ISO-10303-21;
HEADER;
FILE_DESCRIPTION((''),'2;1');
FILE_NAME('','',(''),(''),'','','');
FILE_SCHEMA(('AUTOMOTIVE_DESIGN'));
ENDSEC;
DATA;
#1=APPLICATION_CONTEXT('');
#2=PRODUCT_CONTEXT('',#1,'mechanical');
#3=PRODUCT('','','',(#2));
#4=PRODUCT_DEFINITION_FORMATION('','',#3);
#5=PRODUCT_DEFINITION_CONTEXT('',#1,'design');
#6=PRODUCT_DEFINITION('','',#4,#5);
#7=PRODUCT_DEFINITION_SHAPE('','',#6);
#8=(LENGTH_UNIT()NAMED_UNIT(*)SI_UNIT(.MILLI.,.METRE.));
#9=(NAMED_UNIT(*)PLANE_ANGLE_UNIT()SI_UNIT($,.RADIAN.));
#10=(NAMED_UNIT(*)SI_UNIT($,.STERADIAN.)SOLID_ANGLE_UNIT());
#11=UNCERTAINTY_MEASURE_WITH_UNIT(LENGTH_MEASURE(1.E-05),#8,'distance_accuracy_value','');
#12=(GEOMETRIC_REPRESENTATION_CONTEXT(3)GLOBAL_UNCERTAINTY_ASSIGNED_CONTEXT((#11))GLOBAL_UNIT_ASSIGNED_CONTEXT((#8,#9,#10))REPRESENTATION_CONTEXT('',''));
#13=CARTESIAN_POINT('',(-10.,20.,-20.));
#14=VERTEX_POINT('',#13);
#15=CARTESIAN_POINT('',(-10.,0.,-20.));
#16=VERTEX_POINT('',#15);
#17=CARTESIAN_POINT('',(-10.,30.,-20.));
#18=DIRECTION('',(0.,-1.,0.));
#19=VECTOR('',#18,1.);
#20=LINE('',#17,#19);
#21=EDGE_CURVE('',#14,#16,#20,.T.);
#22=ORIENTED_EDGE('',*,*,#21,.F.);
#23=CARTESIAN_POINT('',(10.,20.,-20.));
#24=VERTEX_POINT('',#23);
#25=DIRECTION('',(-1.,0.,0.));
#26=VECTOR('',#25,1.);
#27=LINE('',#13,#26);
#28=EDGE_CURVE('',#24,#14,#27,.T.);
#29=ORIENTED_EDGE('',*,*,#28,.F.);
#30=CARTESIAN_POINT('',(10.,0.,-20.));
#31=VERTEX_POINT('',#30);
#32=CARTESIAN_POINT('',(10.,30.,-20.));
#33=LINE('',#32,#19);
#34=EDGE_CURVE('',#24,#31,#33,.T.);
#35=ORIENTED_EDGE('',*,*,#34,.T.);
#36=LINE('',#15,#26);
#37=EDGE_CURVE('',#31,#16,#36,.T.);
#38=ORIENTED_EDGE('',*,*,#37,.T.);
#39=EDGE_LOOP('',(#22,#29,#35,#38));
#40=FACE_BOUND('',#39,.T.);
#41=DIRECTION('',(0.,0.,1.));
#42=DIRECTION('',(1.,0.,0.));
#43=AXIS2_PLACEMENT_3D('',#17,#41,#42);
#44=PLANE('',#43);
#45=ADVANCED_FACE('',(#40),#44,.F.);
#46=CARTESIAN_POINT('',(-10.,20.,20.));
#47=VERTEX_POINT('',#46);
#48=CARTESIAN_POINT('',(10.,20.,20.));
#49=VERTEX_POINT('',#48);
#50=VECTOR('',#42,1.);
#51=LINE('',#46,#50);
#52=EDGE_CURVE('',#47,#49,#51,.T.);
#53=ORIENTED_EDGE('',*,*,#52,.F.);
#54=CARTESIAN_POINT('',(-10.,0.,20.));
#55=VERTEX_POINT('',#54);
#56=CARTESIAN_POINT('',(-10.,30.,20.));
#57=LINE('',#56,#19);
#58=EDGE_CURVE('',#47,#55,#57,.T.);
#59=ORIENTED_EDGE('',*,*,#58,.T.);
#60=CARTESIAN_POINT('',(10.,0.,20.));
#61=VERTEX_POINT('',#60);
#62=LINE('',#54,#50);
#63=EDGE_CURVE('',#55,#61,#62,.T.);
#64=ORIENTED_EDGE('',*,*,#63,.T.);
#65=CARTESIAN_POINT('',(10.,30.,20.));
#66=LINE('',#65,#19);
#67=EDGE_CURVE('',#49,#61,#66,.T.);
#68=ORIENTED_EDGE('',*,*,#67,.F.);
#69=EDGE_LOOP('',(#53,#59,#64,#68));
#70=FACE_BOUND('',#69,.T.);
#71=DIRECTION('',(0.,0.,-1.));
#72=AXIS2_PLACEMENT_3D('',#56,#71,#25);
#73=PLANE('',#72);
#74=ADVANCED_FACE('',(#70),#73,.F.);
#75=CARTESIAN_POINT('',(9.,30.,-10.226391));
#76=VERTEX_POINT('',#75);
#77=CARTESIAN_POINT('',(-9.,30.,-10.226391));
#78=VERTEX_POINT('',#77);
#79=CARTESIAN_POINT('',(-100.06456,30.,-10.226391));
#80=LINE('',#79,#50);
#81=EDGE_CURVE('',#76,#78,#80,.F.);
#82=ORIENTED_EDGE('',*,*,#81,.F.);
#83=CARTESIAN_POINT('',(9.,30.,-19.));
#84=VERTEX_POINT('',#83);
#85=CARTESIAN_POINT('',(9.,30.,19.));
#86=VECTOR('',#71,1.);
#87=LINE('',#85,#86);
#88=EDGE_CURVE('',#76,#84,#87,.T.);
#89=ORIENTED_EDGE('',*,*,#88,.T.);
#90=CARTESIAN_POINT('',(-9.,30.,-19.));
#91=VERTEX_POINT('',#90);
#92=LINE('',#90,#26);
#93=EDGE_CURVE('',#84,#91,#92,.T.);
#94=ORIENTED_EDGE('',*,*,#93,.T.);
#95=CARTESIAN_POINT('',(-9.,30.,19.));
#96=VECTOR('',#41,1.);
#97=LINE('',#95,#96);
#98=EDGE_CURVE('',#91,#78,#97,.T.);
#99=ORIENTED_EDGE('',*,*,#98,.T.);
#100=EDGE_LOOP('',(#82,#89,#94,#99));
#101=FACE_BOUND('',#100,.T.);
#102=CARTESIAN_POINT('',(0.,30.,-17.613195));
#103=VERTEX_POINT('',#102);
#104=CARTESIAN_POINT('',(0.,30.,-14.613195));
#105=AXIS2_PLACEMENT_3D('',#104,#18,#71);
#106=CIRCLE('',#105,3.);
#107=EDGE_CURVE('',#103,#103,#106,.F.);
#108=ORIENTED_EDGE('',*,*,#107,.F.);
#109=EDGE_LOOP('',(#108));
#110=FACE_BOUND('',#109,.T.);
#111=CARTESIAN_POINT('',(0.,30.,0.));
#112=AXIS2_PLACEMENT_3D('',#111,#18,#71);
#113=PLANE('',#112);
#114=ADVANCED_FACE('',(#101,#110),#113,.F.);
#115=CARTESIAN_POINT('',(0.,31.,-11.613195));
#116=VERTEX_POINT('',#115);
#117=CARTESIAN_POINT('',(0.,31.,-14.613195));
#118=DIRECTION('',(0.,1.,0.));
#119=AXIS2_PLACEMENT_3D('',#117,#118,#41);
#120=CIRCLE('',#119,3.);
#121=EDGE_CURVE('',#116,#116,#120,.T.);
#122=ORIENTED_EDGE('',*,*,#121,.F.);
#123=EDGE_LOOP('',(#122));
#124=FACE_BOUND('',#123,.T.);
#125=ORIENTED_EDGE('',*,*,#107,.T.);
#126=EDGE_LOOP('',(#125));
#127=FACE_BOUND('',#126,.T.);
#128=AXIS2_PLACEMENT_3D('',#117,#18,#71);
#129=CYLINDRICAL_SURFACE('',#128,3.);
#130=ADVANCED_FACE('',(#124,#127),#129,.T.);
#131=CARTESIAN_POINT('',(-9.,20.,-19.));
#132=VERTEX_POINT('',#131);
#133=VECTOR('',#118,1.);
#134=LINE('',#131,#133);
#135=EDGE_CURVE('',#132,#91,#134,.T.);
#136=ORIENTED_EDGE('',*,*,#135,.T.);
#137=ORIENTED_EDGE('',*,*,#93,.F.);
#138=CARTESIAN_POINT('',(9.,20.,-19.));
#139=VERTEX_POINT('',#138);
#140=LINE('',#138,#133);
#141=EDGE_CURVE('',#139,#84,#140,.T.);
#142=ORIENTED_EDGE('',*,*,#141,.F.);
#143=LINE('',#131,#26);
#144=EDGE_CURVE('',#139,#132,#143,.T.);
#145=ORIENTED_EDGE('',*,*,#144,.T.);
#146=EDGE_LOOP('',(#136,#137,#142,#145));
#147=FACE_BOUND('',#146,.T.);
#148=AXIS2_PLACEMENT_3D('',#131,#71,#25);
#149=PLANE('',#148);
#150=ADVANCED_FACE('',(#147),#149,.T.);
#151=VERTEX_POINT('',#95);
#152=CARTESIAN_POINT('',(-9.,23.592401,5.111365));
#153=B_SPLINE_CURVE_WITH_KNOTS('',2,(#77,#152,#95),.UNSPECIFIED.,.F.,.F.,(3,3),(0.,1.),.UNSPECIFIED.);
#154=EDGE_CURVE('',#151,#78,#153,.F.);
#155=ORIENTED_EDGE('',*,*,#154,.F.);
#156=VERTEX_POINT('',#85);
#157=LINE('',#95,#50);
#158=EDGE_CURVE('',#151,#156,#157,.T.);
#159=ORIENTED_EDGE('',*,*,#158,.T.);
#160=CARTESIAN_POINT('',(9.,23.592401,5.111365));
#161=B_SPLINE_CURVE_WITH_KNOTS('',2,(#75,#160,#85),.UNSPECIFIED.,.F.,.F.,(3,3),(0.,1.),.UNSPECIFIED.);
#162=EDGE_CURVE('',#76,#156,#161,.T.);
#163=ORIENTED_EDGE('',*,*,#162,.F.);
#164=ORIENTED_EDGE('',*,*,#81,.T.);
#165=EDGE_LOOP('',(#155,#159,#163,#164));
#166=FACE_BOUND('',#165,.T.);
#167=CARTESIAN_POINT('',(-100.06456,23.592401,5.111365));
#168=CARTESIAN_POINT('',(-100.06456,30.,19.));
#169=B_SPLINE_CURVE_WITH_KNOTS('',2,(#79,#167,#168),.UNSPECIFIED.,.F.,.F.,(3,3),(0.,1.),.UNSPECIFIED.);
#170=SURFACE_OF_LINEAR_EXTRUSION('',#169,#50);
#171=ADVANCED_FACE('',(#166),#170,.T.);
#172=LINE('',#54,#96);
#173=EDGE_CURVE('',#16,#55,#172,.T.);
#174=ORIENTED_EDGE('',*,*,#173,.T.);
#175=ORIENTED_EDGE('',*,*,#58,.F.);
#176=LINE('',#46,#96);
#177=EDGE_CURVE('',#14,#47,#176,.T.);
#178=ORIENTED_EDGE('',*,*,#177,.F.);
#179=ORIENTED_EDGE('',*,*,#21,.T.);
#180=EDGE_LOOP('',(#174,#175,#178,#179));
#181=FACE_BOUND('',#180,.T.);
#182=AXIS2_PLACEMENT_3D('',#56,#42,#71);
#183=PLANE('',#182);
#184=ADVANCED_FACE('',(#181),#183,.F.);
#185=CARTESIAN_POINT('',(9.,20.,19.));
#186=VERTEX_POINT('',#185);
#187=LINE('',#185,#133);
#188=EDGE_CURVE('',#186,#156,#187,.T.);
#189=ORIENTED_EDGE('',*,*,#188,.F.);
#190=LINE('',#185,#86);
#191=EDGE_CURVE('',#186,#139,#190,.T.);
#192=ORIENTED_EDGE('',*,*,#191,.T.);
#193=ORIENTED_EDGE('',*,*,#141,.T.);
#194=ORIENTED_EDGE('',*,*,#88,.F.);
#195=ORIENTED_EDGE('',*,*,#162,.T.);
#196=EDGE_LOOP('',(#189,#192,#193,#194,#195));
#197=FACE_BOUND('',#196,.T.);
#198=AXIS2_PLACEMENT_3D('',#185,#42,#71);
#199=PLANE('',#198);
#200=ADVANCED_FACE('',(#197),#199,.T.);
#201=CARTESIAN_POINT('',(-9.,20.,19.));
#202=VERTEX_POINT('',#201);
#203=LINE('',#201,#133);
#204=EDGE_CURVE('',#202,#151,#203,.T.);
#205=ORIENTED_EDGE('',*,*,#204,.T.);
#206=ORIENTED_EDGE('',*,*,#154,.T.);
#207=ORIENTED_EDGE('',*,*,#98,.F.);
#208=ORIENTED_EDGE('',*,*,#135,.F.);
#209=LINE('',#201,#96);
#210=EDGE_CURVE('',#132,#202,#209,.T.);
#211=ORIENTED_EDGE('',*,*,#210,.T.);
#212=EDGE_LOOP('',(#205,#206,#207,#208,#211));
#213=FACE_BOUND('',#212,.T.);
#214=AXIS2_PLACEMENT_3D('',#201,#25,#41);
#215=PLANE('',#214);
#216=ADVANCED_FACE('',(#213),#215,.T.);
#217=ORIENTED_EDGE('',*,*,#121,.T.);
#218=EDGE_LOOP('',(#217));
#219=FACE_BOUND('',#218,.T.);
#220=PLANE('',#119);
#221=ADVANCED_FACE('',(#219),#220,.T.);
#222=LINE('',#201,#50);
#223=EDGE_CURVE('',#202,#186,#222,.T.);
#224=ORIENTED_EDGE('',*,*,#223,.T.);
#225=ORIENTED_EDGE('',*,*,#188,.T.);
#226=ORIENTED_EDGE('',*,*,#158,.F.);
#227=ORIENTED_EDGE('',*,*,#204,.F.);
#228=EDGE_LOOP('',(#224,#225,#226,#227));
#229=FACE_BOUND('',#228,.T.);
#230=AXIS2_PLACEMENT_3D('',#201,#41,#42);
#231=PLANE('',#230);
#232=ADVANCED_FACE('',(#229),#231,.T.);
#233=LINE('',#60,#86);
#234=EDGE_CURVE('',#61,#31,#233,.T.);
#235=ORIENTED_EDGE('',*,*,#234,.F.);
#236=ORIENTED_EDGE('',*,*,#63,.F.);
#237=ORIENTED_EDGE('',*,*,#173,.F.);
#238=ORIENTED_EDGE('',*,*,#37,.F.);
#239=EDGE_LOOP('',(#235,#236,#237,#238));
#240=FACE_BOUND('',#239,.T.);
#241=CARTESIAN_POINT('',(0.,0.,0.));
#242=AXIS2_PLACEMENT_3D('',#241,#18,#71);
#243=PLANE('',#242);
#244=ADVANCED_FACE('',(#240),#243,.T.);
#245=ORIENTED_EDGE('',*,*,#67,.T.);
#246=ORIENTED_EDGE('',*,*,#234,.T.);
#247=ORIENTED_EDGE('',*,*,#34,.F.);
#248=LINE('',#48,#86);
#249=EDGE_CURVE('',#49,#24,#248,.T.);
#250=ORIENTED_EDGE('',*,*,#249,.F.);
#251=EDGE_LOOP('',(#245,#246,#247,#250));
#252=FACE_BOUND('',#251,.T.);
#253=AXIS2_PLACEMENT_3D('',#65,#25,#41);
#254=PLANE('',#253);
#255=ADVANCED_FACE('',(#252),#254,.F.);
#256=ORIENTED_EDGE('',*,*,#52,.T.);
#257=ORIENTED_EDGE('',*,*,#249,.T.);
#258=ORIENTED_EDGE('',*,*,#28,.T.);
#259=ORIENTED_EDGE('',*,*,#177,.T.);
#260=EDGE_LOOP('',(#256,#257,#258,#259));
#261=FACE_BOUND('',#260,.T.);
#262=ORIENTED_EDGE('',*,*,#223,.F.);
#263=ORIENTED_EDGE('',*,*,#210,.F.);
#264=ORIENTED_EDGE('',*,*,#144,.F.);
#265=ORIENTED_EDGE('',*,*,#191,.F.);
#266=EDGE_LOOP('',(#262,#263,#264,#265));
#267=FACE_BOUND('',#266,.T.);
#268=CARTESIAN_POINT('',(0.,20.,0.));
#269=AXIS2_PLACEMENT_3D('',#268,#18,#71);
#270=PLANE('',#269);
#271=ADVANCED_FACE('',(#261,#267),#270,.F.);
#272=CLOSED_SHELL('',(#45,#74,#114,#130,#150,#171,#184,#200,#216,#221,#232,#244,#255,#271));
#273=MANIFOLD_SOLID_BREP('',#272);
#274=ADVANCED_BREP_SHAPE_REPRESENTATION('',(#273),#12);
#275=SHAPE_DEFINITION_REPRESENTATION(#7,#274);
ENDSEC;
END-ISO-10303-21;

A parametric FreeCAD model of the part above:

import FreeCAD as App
import Part
import Sketcher
Q = App.Units.Quantity


def add_polygon(sketch, points):
    """Adds a closed chain of lines whose ends are joined by coincident constraints."""
    first, n = sketch.GeometryCount, len(points)
    for a, b in zip(points, points[1:] + points[:1]):
        sketch.addGeometry(Part.LineSegment(App.Vector(*a, 0), App.Vector(*b, 0)), False)
    for i in range(n):
        sketch.addConstraint(Sketcher.Constraint("Coincident", first + i, 2, first + (i + 1) % n, 1))

doc = App.newDocument("Part")
body = doc.addObject("PartDesign::Body", "Body")

sketch1 = body.newObject("Sketcher::SketchObject", "Sketch")
sketch1.AttachmentSupport = (doc.getObject("XZ_Plane"), [""])
sketch1.MapMode = "FlatFace"
add_polygon(sketch1, [(-10, -20), (-10, 20), (10, 20), (10, -20)])
sketch1.addConstraint(Sketcher.Constraint("Vertical", 0))
sketch1.addConstraint(Sketcher.Constraint("Horizontal", 1))
sketch1.addConstraint(Sketcher.Constraint("Vertical", 2))
sketch1.addConstraint(Sketcher.Constraint("Horizontal", 3))
sketch1.addConstraint(Sketcher.Constraint("Symmetric", 0, 2, 2, 2, -1, 1))
sketch1.addConstraint(Sketcher.Constraint("DistanceX", 1, 1, 1, 2, Q("20 mm")))
sketch1.addConstraint(Sketcher.Constraint("DistanceY", 0, 1, 0, 2, Q("40 mm")))
pad1 = body.newObject("PartDesign::Pad", "Pad")
pad1.Profile = sketch1
pad1.Length = 30
pad1.Reversed = True

sketch2 = body.newObject("Sketcher::SketchObject", "Sketch001")
sketch2.AttachmentSupport = (doc.getObject("XZ_Plane"), [""])
sketch2.MapMode = "FlatFace"
sketch2.AttachmentOffset = App.Placement(App.Vector(0, 0, -30), App.Rotation())
add_polygon(sketch2, [(-10, -20), (-10, 20), (10, 20), (10, -20)])
add_polygon(sketch2, [(9, 19), (-9, 19), (-9, -19), (9, -19)])
sketch2.addConstraint(Sketcher.Constraint("Vertical", 0))
sketch2.addConstraint(Sketcher.Constraint("Horizontal", 1))
sketch2.addConstraint(Sketcher.Constraint("Vertical", 2))
sketch2.addConstraint(Sketcher.Constraint("Horizontal", 3))
sketch2.addConstraint(Sketcher.Constraint("Horizontal", 4))
sketch2.addConstraint(Sketcher.Constraint("Vertical", 5))
sketch2.addConstraint(Sketcher.Constraint("Horizontal", 6))
sketch2.addConstraint(Sketcher.Constraint("Vertical", 7))
sketch2.addConstraint(Sketcher.Constraint("Symmetric", 0, 2, 2, 2, -1, 1))
sketch2.addConstraint(Sketcher.Constraint("Symmetric", 4, 2, 6, 2, -1, 1))
sketch2.addConstraint(Sketcher.Constraint("DistanceX", 1, 1, 1, 2, Q("20 mm")))
sketch2.addConstraint(Sketcher.Constraint("DistanceX", 4, 2, 4, 1, Q("18 mm")))
sketch2.addConstraint(Sketcher.Constraint("DistanceY", 0, 1, 0, 2, Q("40 mm")))
sketch2.addConstraint(Sketcher.Constraint("DistanceY", 5, 2, 5, 1, Q("38 mm")))
pocket1 = body.newObject("PartDesign::Pocket", "Pocket")
pocket1.Profile = sketch2
pocket1.Length = 10
pocket1.Reversed = True

sketch3 = body.newObject("Sketcher::SketchObject", "Sketch002")
sketch3.AttachmentSupport = (doc.getObject("YZ_Plane"), [""])
sketch3.MapMode = "FlatFace"
sketch3.AttachmentOffset = App.Placement(App.Vector(0, 0, -9), App.Rotation())
sketch3.addGeometry(Part.LineSegment(App.Vector(30, 19, 0), App.Vector(30, -10.226391, 0)), False)
sketch3.addGeometry(Part.BSplineCurve([App.Vector(30, -10.226391, 0), App.Vector(23.592401, 5.111365, 0), App.Vector(30, 19, 0)], [3, 3], [0, 1], False, 2, [1, 1, 1], False), False)
sketch3.addConstraint(Sketcher.Constraint("Block", 1))
sketch3.addConstraint(Sketcher.Constraint("Coincident", 0, 1, 1, 2))
sketch3.addConstraint(Sketcher.Constraint("Coincident", 1, 1, 0, 2))
pocket2 = body.newObject("PartDesign::Pocket", "Pocket001")
pocket2.Profile = sketch3
pocket2.Type = "ThroughAll"
pocket2.Midplane = True

sketch4 = body.newObject("Sketcher::SketchObject", "Sketch003")
sketch4.AttachmentSupport = (doc.getObject("XZ_Plane"), [""])
sketch4.MapMode = "FlatFace"
sketch4.AttachmentOffset = App.Placement(App.Vector(0, 0, -30), App.Rotation())
sketch4.addGeometry(Part.Circle(App.Vector(0, -14.6, 0), App.Vector(0, 0, 1), 3), False)
sketch4.addConstraint(Sketcher.Constraint("PointOnObject", 0, 3, -2))
sketch4.addConstraint(Sketcher.Constraint("Diameter", 0, Q("6 mm")))
sketch4.addConstraint(Sketcher.Constraint("DistanceY", 0, 3, -1, 1, Q("14.613195 mm")))
pad2 = body.newObject("PartDesign::Pad", "Pad001")
pad2.Profile = sketch4
pad2.Length = 1
pad2.Reversed = True

doc.recompute()
